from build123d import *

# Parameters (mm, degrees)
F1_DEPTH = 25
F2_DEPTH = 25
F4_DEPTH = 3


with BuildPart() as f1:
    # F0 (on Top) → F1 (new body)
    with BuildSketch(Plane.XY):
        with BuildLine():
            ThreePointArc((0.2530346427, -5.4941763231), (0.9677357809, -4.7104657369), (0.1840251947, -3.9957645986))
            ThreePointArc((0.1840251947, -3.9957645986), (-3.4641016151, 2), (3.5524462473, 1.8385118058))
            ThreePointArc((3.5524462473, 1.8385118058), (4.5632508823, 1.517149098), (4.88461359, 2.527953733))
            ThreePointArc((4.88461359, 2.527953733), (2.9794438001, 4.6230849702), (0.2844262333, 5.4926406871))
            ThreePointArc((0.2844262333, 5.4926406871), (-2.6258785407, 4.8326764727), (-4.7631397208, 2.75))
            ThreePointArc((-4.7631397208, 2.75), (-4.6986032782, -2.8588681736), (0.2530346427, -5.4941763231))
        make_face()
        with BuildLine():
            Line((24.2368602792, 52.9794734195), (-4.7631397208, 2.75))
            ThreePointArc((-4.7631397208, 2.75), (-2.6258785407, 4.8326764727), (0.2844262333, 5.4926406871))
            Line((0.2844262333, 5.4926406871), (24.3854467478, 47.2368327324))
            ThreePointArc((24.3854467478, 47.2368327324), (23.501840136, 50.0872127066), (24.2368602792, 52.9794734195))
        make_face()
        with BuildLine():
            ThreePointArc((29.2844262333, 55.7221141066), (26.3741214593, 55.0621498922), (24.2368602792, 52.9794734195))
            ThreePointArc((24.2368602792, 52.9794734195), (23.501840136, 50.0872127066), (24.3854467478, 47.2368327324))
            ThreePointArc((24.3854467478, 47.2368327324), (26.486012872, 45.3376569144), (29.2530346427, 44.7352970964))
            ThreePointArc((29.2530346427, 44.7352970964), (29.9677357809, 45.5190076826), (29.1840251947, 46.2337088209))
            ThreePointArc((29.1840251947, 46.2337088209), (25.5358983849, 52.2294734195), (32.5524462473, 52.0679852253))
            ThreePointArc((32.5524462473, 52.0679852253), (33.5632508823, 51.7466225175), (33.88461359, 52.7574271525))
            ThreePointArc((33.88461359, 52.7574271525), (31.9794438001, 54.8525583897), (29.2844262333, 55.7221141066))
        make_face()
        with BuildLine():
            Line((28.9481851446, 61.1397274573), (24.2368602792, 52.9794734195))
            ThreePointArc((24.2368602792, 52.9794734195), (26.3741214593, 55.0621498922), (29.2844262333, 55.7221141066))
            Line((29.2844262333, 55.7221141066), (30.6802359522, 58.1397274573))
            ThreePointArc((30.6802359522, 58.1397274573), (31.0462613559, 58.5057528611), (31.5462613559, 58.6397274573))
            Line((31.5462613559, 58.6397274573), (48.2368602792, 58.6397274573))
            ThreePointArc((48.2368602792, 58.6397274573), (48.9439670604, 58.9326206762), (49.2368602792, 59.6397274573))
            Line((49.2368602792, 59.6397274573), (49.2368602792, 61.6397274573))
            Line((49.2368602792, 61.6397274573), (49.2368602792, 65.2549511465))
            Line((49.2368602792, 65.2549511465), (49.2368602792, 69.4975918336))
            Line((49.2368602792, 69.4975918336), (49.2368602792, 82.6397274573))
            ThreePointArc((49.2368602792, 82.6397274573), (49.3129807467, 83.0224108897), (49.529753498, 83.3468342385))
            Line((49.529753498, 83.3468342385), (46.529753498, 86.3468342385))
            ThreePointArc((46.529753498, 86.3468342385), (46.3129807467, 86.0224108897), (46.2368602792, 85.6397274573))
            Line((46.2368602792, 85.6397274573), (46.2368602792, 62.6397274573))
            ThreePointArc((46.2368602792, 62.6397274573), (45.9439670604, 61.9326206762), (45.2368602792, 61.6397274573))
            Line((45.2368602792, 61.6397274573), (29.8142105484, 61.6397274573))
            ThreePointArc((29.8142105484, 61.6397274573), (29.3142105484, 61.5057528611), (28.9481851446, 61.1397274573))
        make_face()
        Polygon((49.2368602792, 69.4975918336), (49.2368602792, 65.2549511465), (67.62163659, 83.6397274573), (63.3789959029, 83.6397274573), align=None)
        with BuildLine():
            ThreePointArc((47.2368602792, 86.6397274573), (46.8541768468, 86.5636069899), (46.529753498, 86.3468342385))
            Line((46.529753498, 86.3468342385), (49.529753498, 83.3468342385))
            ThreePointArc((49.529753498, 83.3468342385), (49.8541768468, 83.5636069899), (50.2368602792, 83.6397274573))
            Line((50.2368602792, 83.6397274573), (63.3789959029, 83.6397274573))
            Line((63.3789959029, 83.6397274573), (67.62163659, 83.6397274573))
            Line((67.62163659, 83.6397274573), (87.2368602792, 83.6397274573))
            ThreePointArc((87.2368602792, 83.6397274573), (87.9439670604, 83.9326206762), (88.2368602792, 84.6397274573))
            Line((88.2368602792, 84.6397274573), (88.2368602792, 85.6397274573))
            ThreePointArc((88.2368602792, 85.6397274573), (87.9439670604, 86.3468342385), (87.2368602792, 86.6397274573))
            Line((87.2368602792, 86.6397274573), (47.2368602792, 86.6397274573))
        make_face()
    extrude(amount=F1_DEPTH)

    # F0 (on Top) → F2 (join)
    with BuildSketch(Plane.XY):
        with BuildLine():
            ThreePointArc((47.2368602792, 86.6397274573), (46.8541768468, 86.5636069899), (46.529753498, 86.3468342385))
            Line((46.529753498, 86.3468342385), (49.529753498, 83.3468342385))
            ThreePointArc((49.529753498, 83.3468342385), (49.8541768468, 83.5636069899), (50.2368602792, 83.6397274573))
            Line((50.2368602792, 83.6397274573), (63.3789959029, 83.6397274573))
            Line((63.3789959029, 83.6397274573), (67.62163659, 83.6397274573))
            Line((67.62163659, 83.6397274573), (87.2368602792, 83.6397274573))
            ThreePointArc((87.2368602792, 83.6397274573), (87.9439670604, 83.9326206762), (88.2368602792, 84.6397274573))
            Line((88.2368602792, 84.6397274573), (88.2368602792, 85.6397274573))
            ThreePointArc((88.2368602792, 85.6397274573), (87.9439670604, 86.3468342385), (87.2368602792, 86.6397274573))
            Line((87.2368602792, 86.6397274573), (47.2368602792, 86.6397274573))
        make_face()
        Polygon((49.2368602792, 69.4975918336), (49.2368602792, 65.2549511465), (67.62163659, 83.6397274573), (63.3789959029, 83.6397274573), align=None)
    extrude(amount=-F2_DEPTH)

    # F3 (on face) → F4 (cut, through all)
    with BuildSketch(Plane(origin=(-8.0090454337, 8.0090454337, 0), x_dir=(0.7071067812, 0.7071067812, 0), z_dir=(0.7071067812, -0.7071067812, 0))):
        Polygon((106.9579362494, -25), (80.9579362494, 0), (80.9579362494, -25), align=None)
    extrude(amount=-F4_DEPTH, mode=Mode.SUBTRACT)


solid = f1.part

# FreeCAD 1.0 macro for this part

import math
import FreeCAD as App
import Part
import Sketcher
Q = App.Units.Quantity


def add_polygon(sketch, points):
    """Adds a closed chain of lines whose ends are joined by coincident constraints."""
    first, n = sketch.GeometryCount, len(points)
    for a, b in zip(points, points[1:] + points[:1]):
        sketch.addGeometry(Part.LineSegment(App.Vector(*a, 0), App.Vector(*b, 0)), False)
    for i in range(n):
        sketch.addConstraint(Sketcher.Constraint("Coincident", first + i, 2, first + (i + 1) % n, 1))

doc = App.newDocument("Part")
body = doc.addObject("PartDesign::Body", "Body")

sketch1 = body.newObject("Sketcher::SketchObject", "Sketch")
sketch1.AttachmentSupport = (doc.getObject("XY_Plane"), [""])
sketch1.MapMode = "FlatFace"
sketch1.addGeometry([
    Part.ArcOfCircle(Part.Circle(App.Vector(0.2, -4.7, 0), App.Vector(0, 0, 1), 0.8), math.radians(-87), math.radians(93)),
    Part.ArcOfCircle(Part.Circle(App.Vector(0, 0, 0), App.Vector(0, 0, 1), 4), math.radians(27), math.radians(273)),
    Part.ArcOfCircle(Part.Circle(App.Vector(4.2, 2.2, 0), App.Vector(0, 0, 1), 0.8), math.radians(-153), math.radians(27)),
    Part.ArcOfCircle(Part.Circle(App.Vector(0, 0, 0), App.Vector(0, 0, 1), 5.5), math.radians(27), math.radians(87)),
    Part.LineSegment(App.Vector(0.3, 5.5, 0), App.Vector(24.4, 47.2, 0)),
    Part.ArcOfCircle(Part.Circle(App.Vector(29, 50.2, 0), App.Vector(0, 0, 1), 5.5), math.radians(-147), math.radians(-87)),
    Part.ArcOfCircle(Part.Circle(App.Vector(29.2, 45.5, 0), App.Vector(0, 0, 1), 0.8), math.radians(-87), math.radians(93)),
    Part.ArcOfCircle(Part.Circle(App.Vector(29, 50.2, 0), App.Vector(0, 0, 1), 4), math.radians(27), math.radians(273)),
    Part.ArcOfCircle(Part.Circle(App.Vector(33.2, 52.4, 0), App.Vector(0, 0, 1), 0.8), math.radians(-153), math.radians(27)),
    Part.ArcOfCircle(Part.Circle(App.Vector(29, 50.2, 0), App.Vector(0, 0, 1), 5.5), math.radians(27), math.radians(87)),
    Part.LineSegment(App.Vector(29.3, 55.7, 0), App.Vector(30.7, 58.1, 0)),
    Part.ArcOfCircle(Part.Circle(App.Vector(31.5, 57.6, 0), App.Vector(0, 0, 1), 1), math.radians(90), math.radians(150)),
    Part.LineSegment(App.Vector(31.5, 58.6, 0), App.Vector(48.2, 58.6, 0)),
    Part.ArcOfCircle(Part.Circle(App.Vector(48.2, 59.6, 0), App.Vector(0, 0, 1), 1), math.radians(-90), math.radians(0)),
    Part.LineSegment(App.Vector(49.2, 59.6, 0), App.Vector(49.2, 65.3, 0)),
    Part.LineSegment(App.Vector(49.2, 65.3, 0), App.Vector(67.6, 83.6, 0)),
    Part.LineSegment(App.Vector(67.6, 83.6, 0), App.Vector(87.2, 83.6, 0)),
    Part.ArcOfCircle(Part.Circle(App.Vector(87.2, 84.6, 0), App.Vector(0, 0, 1), 1), math.radians(-90), math.radians(0)),
    Part.LineSegment(App.Vector(88.2, 84.6, 0), App.Vector(88.2, 85.6, 0)),
    Part.ArcOfCircle(Part.Circle(App.Vector(87.2, 85.6, 0), App.Vector(0, 0, 1), 1), math.radians(0), math.radians(90)),
    Part.LineSegment(App.Vector(87.2, 86.6, 0), App.Vector(47.2, 86.6, 0)),
    Part.ArcOfCircle(Part.Circle(App.Vector(47.2, 85.6, 0), App.Vector(0, 0, 1), 1), math.radians(90), math.radians(135)),
    Part.ArcOfCircle(Part.Circle(App.Vector(47.2, 85.6, 0), App.Vector(0, 0, 1), 1), math.radians(135), math.radians(180)),
    Part.LineSegment(App.Vector(46.2, 85.6, 0), App.Vector(46.2, 62.6, 0)),
    Part.ArcOfCircle(Part.Circle(App.Vector(45.2, 62.6, 0), App.Vector(0, 0, 1), 1), math.radians(-90), math.radians(0)),
    Part.LineSegment(App.Vector(45.2, 61.6, 0), App.Vector(29.8, 61.6, 0)),
    Part.ArcOfCircle(Part.Circle(App.Vector(29.8, 60.6, 0), App.Vector(0, 0, 1), 1), math.radians(90), math.radians(150)),
    Part.LineSegment(App.Vector(28.9, 61.1, 0), App.Vector(24.2, 53, 0)),
    Part.LineSegment(App.Vector(24.2, 53, 0), App.Vector(-4.8, 2.8, 0)),
    Part.ArcOfCircle(Part.Circle(App.Vector(0, 0, 0), App.Vector(0, 0, 1), 5.5), math.radians(150), math.radians(273)),
    Part.LineSegment(App.Vector(63.4, 83.6, 0), App.Vector(49.2, 69.5, 0)),
    Part.LineSegment(App.Vector(49.2, 69.5, 0), App.Vector(49.2, 82.6, 0)),
    Part.ArcOfCircle(Part.Circle(App.Vector(50.2, 82.6, 0), App.Vector(0, 0, 1), 1), math.radians(135), math.radians(180)),
    Part.ArcOfCircle(Part.Circle(App.Vector(50.2, 82.6, 0), App.Vector(0, 0, 1), 1), math.radians(90), math.radians(135)),
    Part.LineSegment(App.Vector(50.2, 83.6, 0), App.Vector(63.4, 83.6, 0)),
], False)
sketch1.addConstraint([
    Sketcher.Constraint("Tangent", 0, 2, 1, 2),
    Sketcher.Constraint("Tangent", 1, 1, 2, 1),
    Sketcher.Constraint("Tangent", 2, 2, 3, 1),
    Sketcher.Constraint("Coincident", 3, 2, 4, 1),
    Sketcher.Constraint("Coincident", 4, 2, 5, 1),
    Sketcher.Constraint("Tangent", 5, 2, 6, 1),
    Sketcher.Constraint("Tangent", 6, 2, 7, 2),
    Sketcher.Constraint("Tangent", 7, 1, 8, 1),
    Sketcher.Constraint("Tangent", 8, 2, 9, 1),
    Sketcher.Constraint("Coincident", 9, 2, 10, 1),
    Sketcher.Constraint("Tangent", 10, 2, 11, 2),
    Sketcher.Constraint("Tangent", 11, 1, 12, 1),
    Sketcher.Constraint("Tangent", 12, 2, 13, 1),
    Sketcher.Constraint("Tangent", 13, 2, 14, 1),
    Sketcher.Constraint("Coincident", 14, 2, 15, 1),
    Sketcher.Constraint("Coincident", 15, 2, 16, 1),
    Sketcher.Constraint("Tangent", 16, 2, 17, 1),
    Sketcher.Constraint("Tangent", 17, 2, 18, 1),
    Sketcher.Constraint("Tangent", 18, 2, 19, 1),
    Sketcher.Constraint("Tangent", 19, 2, 20, 1),
    Sketcher.Constraint("Tangent", 20, 2, 21, 1),
    Sketcher.Constraint("Tangent", 21, 2, 22, 1),
    Sketcher.Constraint("Tangent", 22, 2, 23, 1),
    Sketcher.Constraint("Tangent", 23, 2, 24, 2),
    Sketcher.Constraint("Tangent", 24, 1, 25, 1),
    Sketcher.Constraint("Tangent", 25, 2, 26, 1),
    Sketcher.Constraint("Tangent", 26, 2, 27, 1),
    Sketcher.Constraint("Coincident", 27, 2, 28, 1),
    Sketcher.Constraint("Tangent", 28, 2, 29, 1),
    Sketcher.Constraint("Tangent", 29, 2, 0, 1),
    Sketcher.Constraint("Coincident", 30, 2, 31, 1),
    Sketcher.Constraint("Tangent", 31, 2, 32, 2),
    Sketcher.Constraint("Tangent", 32, 1, 33, 2),
    Sketcher.Constraint("Tangent", 33, 1, 34, 1),
    Sketcher.Constraint("Coincident", 34, 2, 30, 1),
    Sketcher.Constraint("Horizontal", 12),
    Sketcher.Constraint("Vertical", 14),
    Sketcher.Constraint("Horizontal", 16),
    Sketcher.Constraint("Vertical", 18),
    Sketcher.Constraint("Horizontal", 20),
    Sketcher.Constraint("Vertical", 23),
    Sketcher.Constraint("Horizontal", 25),
    Sketcher.Constraint("Vertical", 31),
    Sketcher.Constraint("Horizontal", 34),
    Sketcher.Constraint("Coincident", 1, 3, -1, 1),
    Sketcher.Constraint("Coincident", 3, 3, -1, 1),
    Sketcher.Constraint("Coincident", 29, 3, -1, 1),
    Sketcher.Constraint("Coincident", 7, 3, 5, 3),
    Sketcher.Constraint("Coincident", 9, 3, 5, 3),
    Sketcher.Constraint("Equal", 0, 2),
    Sketcher.Constraint("Equal", 3, 5),
    Sketcher.Constraint("Equal", 2, 6),
    Sketcher.Constraint("Equal", 6, 8),
    Sketcher.Constraint("Equal", 11, 13),
    Sketcher.Constraint("Equal", 13, 17),
    Sketcher.Constraint("Equal", 17, 19),
    Sketcher.Constraint("Equal", 19, 21),
    Sketcher.Constraint("Equal", 21, 22),
    Sketcher.Constraint("Equal", 22, 24),
    Sketcher.Constraint("Equal", 24, 26),
    Sketcher.Constraint("Equal", 26, 32),
    Sketcher.Constraint("Equal", 32, 33),
    Sketcher.Constraint("Parallel", 4, 10),
    Sketcher.Constraint("Parallel", 10, 27),
    Sketcher.Constraint("Parallel", 27, 28),
    Sketcher.Constraint("Parallel", 15, 30),
    Sketcher.Constraint("Horizontal", 16, 2, 33, 1),
    Sketcher.Constraint("Vertical", 14, 2, 30, 2),
    Sketcher.Constraint("Equal", 34, 31),
    Sketcher.Constraint("Radius", 1, 4.0),
    Sketcher.Constraint("Radius", 11, 1.0),
    Sketcher.Constraint("Radius", 3, 5.5),
    Sketcher.Constraint("DistanceX", 20, 2, 20, 1, 40.0),
    Sketcher.Constraint("DistanceY", 18, 1, 18, 2, 1.0),
    Sketcher.Constraint("DistanceY", 23, 2, 23, 1, 23.0),
    Sketcher.Constraint("Angle", 4, Q("60 deg")),
    Sketcher.Constraint("Distance", 15, 26.0),
    Sketcher.Constraint("Distance", 28, 58.0),
    Sketcher.Constraint("Distance", 30, 20.0),
    Sketcher.Constraint("DistanceX", -1, 1, 5, 3, 29.0),
    Sketcher.Constraint("DistanceX", 0, 3, 2, 3, 4.0),
    Sketcher.Constraint("DistanceX", 2, 3, 6, 3, 25.0),
    Sketcher.Constraint("DistanceX", 6, 3, 8, 3, 4.0),
    Sketcher.Constraint("DistanceX", 13, 3, 17, 3, 39.0),
    Sketcher.Constraint("DistanceY", 13, 3, 17, 3, 25.0),
    Sketcher.Constraint("DistanceY", 5, 3, 27, 2, 2.75),
    Sketcher.Constraint("DistanceX", 12, 1, 12, 2, 16.690599),
    Sketcher.Constraint("DistanceX", 25, 2, 25, 1, 15.42265),
    Sketcher.Constraint("DistanceY", 8, 2, 11, 3, 4.8823),
    Sketcher.Constraint("Distance", 4, 48.202041),
    Sketcher.Constraint("Distance", 10, 2.791619),
    Sketcher.Constraint("DistanceX", -1, 1, 21, 2, 46.529753),
    Sketcher.Constraint("DistanceX", -1, 1, 32, 1, 49.529753),
])
pad1 = body.newObject("PartDesign::Pad", "Pad")
pad1.Profile = sketch1
pad1.Length = 25

sketch2 = body.newObject("Sketcher::SketchObject", "Sketch001")
sketch2.AttachmentSupport = (doc.getObject("XY_Plane"), [""])
sketch2.MapMode = "FlatFace"
sketch2.addGeometry([
    Part.ArcOfCircle(Part.Circle(App.Vector(47.2, 85.6, 0), App.Vector(0, 0, 1), 1), math.radians(90), math.radians(135)),
    Part.LineSegment(App.Vector(46.5, 86.3, 0), App.Vector(49.5, 83.3, 0)),
    Part.ArcOfCircle(Part.Circle(App.Vector(50.2, 82.6, 0), App.Vector(0, 0, 1), 1), math.radians(90), math.radians(135)),
    Part.LineSegment(App.Vector(50.2, 83.6, 0), App.Vector(63.4, 83.6, 0)),
    Part.LineSegment(App.Vector(63.4, 83.6, 0), App.Vector(49.2, 69.5, 0)),
    Part.LineSegment(App.Vector(49.2, 69.5, 0), App.Vector(49.2, 65.3, 0)),
    Part.LineSegment(App.Vector(49.2, 65.3, 0), App.Vector(67.6, 83.6, 0)),
    Part.LineSegment(App.Vector(67.6, 83.6, 0), App.Vector(87.2, 83.6, 0)),
    Part.ArcOfCircle(Part.Circle(App.Vector(87.2, 84.6, 0), App.Vector(0, 0, 1), 1), math.radians(-90), math.radians(0)),
    Part.LineSegment(App.Vector(88.2, 84.6, 0), App.Vector(88.2, 85.6, 0)),
    Part.ArcOfCircle(Part.Circle(App.Vector(87.2, 85.6, 0), App.Vector(0, 0, 1), 1), math.radians(0), math.radians(90)),
    Part.LineSegment(App.Vector(87.2, 86.6, 0), App.Vector(47.2, 86.6, 0)),
], False)
sketch2.addConstraint([
    Sketcher.Constraint("Coincident", 0, 2, 1, 1),
    Sketcher.Constraint("Coincident", 1, 2, 2, 2),
    Sketcher.Constraint("Tangent", 2, 1, 3, 1),
    Sketcher.Constraint("Coincident", 3, 2, 4, 1),
    Sketcher.Constraint("Coincident", 4, 2, 5, 1),
    Sketcher.Constraint("Coincident", 5, 2, 6, 1),
    Sketcher.Constraint("Coincident", 6, 2, 7, 1),
    Sketcher.Constraint("Tangent", 7, 2, 8, 1),
    Sketcher.Constraint("Tangent", 8, 2, 9, 1),
    Sketcher.Constraint("Tangent", 9, 2, 10, 1),
    Sketcher.Constraint("Tangent", 10, 2, 11, 1),
    Sketcher.Constraint("Tangent", 11, 2, 0, 1),
    Sketcher.Constraint("Horizontal", 3),
    Sketcher.Constraint("Vertical", 5),
    Sketcher.Constraint("Horizontal", 7),
    Sketcher.Constraint("Vertical", 9),
    Sketcher.Constraint("Horizontal", 11),
    Sketcher.Constraint("Equal", 0, 2),
    Sketcher.Constraint("Equal", 2, 8),
    Sketcher.Constraint("Equal", 8, 10),
    Sketcher.Constraint("Perpendicular", 1, 4),
    Sketcher.Constraint("Parallel", 4, 6),
    Sketcher.Constraint("Horizontal", 3, 2, 6, 2),
    Sketcher.Constraint("Radius", 0, 1.0),
    Sketcher.Constraint("DistanceX", 11, 2, 11, 1, 40.0),
    Sketcher.Constraint("DistanceY", 9, 1, 9, 2, 1.0),
    Sketcher.Constraint("Angle", 1, Q("-45 deg")),
    Sketcher.Constraint("Distance", 4, 20.0),
    Sketcher.Constraint("Distance", 6, 26.0),
    Sketcher.Constraint("DistanceX", 0, 3, 2, 3, 3.0),
    Sketcher.Constraint("DistanceX", 4, 2, 2, 3, 1.0),
    Sketcher.Constraint("DistanceX", -1, 1, 0, 3, 47.23686),
    Sketcher.Constraint("DistanceY", -1, 1, 4, 2, 69.497592),
    Sketcher.Constraint("DistanceX", -1, 1, 0, 2, 46.529753),
])
pad2 = body.newObject("PartDesign::Pad", "Pad001")
pad2.Profile = sketch2
pad2.Length = 25
pad2.Reversed = True

sketch3 = body.newObject("Sketcher::SketchObject", "Sketch002")
sketch3.Placement = App.Placement(App.Vector(-8.009045, 8.009045, 0), App.Rotation(App.Vector(0.707106781, 0.707106781, 0), App.Vector(0, 0, 0.999999999), App.Vector(0.707106781, -0.707106781, 0), "ZXY"))
add_polygon(sketch3, [(107, -25), (81, 0), (81, -25)])
sketch3.addConstraint([
    Sketcher.Constraint("Vertical", 1),
    Sketcher.Constraint("Horizontal", 2),
    Sketcher.Constraint("PointOnObject", 0, 2, -1),
    Sketcher.Constraint("DistanceX", 2, 1, 2, 2, 26.0),
    Sketcher.Constraint("DistanceY", 1, 2, 1, 1, 25.0),
    Sketcher.Constraint("DistanceX", -1, 1, 0, 2, 80.957936),
])
pocket1 = body.newObject("PartDesign::Pocket", "Pocket")
pocket1.Profile = sketch3
pocket1.Length = 3

doc.recompute()
